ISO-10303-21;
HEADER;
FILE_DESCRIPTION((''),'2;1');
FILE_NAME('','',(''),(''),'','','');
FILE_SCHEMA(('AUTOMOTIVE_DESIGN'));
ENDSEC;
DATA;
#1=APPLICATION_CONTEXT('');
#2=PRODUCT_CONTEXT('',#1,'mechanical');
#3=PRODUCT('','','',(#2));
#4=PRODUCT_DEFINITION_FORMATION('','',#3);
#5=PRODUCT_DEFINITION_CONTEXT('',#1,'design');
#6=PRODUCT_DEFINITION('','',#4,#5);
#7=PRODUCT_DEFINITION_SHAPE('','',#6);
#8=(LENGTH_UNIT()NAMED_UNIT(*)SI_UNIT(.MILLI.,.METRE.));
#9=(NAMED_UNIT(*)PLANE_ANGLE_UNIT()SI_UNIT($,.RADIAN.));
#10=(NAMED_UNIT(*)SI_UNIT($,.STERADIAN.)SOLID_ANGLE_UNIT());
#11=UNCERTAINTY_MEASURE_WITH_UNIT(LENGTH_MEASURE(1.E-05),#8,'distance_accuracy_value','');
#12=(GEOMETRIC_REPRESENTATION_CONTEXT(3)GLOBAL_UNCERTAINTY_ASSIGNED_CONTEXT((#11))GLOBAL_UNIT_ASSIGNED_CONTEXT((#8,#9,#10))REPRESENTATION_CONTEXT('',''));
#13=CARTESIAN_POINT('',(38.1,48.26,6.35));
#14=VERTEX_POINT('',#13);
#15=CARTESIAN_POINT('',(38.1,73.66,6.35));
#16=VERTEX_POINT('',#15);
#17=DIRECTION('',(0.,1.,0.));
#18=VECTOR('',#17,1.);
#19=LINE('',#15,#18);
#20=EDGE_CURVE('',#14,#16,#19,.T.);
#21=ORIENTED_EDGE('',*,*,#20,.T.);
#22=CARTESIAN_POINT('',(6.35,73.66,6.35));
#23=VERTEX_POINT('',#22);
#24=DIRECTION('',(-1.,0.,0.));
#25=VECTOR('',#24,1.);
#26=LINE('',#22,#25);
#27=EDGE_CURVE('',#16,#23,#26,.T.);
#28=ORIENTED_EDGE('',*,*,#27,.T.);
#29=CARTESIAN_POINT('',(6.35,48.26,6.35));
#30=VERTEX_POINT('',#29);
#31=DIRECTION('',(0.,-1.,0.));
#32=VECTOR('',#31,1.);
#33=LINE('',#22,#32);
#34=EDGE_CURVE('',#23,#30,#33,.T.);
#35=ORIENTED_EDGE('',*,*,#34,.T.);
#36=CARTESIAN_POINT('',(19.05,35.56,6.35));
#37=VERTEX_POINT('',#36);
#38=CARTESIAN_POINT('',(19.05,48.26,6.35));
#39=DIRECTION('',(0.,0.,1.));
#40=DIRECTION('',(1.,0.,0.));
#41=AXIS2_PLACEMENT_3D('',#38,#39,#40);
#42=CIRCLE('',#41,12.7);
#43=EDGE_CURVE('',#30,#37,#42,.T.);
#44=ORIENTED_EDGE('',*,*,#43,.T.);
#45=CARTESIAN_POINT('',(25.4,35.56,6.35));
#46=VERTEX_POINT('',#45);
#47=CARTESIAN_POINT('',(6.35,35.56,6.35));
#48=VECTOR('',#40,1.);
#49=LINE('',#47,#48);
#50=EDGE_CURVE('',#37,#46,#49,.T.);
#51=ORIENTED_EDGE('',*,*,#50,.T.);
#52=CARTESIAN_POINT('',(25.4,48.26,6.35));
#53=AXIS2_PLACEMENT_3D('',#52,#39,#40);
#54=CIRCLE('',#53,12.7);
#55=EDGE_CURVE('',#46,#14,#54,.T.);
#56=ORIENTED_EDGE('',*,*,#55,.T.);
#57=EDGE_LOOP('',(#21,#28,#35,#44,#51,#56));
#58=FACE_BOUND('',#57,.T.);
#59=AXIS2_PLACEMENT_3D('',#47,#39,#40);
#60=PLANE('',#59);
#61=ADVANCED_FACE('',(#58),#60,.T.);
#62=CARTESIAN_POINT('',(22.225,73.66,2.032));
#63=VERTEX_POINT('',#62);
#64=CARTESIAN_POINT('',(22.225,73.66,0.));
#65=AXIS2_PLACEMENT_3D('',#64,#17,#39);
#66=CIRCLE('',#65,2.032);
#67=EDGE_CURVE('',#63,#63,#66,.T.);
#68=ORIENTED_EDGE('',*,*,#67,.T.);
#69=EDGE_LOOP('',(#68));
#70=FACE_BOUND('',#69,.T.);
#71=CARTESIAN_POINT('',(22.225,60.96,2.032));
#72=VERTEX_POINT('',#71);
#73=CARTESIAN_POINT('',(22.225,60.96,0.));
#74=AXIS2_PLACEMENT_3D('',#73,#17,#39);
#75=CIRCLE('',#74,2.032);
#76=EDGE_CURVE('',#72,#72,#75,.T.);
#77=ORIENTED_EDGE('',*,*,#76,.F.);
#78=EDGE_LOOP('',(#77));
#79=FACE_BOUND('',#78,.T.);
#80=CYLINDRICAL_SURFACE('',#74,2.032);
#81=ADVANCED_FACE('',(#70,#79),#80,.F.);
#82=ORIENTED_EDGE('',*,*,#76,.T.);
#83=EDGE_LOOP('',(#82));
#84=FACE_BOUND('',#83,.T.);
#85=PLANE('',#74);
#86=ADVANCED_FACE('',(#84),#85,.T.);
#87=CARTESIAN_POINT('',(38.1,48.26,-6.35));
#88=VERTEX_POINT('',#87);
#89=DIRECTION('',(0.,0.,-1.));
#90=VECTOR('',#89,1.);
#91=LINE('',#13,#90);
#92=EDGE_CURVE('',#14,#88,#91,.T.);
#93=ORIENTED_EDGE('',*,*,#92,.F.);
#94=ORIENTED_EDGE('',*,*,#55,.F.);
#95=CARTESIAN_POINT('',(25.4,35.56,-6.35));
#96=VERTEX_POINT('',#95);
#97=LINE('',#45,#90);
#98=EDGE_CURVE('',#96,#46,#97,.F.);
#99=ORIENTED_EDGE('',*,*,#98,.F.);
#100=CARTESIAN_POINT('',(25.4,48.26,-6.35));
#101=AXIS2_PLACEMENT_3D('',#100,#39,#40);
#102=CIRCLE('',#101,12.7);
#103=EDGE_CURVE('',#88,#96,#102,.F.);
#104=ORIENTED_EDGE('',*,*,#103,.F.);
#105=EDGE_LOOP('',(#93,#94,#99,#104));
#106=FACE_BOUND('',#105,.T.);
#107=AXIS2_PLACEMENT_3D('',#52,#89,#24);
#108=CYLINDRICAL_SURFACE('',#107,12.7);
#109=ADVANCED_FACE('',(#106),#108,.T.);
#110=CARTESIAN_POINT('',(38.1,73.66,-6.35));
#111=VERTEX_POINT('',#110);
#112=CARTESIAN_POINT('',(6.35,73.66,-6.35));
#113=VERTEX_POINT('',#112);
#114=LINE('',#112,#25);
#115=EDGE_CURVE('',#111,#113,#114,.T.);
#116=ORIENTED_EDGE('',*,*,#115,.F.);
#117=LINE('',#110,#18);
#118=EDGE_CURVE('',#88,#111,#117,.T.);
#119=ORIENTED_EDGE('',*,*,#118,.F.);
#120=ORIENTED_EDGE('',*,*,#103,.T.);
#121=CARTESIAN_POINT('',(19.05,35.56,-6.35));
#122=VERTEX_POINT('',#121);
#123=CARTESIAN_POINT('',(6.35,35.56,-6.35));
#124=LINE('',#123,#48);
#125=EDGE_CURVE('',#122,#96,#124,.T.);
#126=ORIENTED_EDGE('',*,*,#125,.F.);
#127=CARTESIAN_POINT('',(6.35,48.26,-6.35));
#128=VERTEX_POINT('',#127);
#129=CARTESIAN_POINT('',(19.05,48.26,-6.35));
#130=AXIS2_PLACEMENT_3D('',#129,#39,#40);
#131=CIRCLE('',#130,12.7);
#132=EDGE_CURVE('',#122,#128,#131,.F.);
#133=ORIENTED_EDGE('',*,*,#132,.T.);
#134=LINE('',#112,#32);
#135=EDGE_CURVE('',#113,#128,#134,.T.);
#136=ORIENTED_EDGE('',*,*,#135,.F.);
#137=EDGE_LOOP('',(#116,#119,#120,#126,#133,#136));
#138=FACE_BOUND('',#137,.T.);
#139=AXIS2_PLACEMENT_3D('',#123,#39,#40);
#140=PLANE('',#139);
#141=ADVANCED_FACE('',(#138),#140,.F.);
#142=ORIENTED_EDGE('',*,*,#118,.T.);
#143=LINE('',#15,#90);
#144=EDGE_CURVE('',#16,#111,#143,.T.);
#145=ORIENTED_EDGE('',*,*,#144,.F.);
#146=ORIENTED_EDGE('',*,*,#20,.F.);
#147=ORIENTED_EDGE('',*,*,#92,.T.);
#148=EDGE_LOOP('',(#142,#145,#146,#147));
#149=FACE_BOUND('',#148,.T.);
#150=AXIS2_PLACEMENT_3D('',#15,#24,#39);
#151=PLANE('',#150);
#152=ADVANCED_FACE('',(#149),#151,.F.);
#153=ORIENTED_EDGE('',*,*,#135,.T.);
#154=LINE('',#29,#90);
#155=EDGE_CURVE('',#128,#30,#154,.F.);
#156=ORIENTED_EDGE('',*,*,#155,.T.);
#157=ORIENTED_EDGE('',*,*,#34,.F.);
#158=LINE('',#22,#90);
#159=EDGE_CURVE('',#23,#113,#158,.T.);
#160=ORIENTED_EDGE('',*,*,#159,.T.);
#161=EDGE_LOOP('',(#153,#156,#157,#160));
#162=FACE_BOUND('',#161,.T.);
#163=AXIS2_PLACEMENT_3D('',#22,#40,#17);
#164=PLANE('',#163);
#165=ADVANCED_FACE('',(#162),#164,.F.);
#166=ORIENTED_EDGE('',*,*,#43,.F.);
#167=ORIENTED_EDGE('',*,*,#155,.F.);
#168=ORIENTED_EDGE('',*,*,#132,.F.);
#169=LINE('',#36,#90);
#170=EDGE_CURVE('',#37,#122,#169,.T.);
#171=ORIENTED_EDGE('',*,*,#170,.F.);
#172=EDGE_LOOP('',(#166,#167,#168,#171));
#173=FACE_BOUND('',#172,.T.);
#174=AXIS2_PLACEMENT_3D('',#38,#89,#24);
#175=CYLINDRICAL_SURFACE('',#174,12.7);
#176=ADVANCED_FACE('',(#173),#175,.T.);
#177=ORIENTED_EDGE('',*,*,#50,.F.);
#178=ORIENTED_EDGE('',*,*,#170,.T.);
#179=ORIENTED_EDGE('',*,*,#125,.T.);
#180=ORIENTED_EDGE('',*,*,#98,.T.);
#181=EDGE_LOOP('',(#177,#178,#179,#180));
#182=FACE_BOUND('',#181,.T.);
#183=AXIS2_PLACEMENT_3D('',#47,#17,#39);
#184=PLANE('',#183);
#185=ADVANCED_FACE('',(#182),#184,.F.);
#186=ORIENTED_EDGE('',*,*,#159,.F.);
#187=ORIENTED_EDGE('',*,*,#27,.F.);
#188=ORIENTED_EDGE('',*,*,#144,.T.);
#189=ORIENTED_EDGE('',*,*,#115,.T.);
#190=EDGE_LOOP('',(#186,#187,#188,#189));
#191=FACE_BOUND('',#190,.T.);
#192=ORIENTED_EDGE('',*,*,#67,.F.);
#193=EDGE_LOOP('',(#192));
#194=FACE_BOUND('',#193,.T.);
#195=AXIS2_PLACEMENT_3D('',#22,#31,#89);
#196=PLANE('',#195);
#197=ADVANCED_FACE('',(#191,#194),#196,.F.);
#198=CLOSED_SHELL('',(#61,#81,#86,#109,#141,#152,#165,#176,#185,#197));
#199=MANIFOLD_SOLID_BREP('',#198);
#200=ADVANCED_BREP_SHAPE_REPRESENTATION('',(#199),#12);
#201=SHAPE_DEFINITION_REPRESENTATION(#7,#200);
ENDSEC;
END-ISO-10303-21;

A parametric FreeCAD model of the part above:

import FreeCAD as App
import Part
import Sketcher

V = App.Vector
Q = App.Units.Quantity


def edges_at(feature, points):
    """Names of the edges that pass closest to the given points."""
    edges = feature.Shape.Edges
    near = lambda p: min(range(len(edges)), key=lambda i: edges[i].distToShape(Part.Vertex(*p))[0])
    return sorted({f"Edge{near(p) + 1}" for p in points})


def add_polygon(sketch, points):
    """Adds a closed chain of lines whose ends are joined by coincident constraints."""
    first, n = sketch.GeometryCount, len(points)
    for a, b in zip(points, points[1:] + points[:1]):
        sketch.addGeometry(Part.LineSegment(App.Vector(*a, 0), App.Vector(*b, 0)), False)
    for i in range(n):
        sketch.addConstraint(Sketcher.Constraint("Coincident", first + i, 2, first + (i + 1) % n, 1))

doc = App.newDocument("Part")
body = doc.addObject("PartDesign::Body", "Body")

# Sketch on XY plane
sketch1 = body.newObject("Sketcher::SketchObject", "Sketch")
sketch1.AttachmentSupport = (doc.getObject("XY_Plane"), [""])
sketch1.MapMode = "FlatFace"
add_polygon(sketch1, [(6, 74), (6, 36), (38, 36), (38, 74)])  # lines 0-3
sketch1.addConstraint([
    Sketcher.Constraint("Vertical", 0),
    Sketcher.Constraint("Horizontal", 1),
    Sketcher.Constraint("Vertical", 2),
    Sketcher.Constraint("Horizontal", 3),
    Sketcher.Constraint("DistanceY", 0, 2, 0, 1, Q("1.5 in")),
    Sketcher.Constraint("DistanceX", 1, 1, 1, 2, Q("1.25 in")),
    Sketcher.Constraint("DistanceY", -1, 1, 0, 2, Q("1.4 in")),
    Sketcher.Constraint("DistanceX", -1, 1, 1, 2, Q("1.5 in")),
])
pad1 = body.newObject("PartDesign::Pad", "Pad")
pad1.Profile = sketch1
pad1.Length = Q("0.5 in")
pad1.Midplane = True
doc.recompute()

fillet = body.newObject("PartDesign::Fillet", "Fillet")
fillet.Base = (pad1, edges_at(pad1, [(38.1, 35.56, 0), (6.35, 35.56, 0)]))
fillet.Radius = Q("0.5 in")

# Sketch on XZ plane
sketch2 = body.newObject("Sketcher::SketchObject", "Sketch001")
sketch2.AttachmentSupport = (doc.getObject("XZ_Plane"), [""])
sketch2.MapMode = "FlatFace"
sketch2.AttachmentOffset = App.Placement(V(0, 0, -2.9 * 25.4), App.Rotation())
sketch2.addGeometry(Part.Circle(V(22.2, 0, 0), V(0, 0, 1), 2), False)
sketch2.addConstraint([
    Sketcher.Constraint("PointOnObject", 0, 3, -1),
    Sketcher.Constraint("Diameter", 0, Q("0.16 in")),
    Sketcher.Constraint("DistanceX", -1, 1, 0, 3, Q("0.875 in")),
])
pocket1 = body.newObject("PartDesign::Pocket", "Pocket")
pocket1.Profile = sketch2
pocket1.Length = Q("0.5 in")
pocket1.Reversed = True

doc.recompute()
